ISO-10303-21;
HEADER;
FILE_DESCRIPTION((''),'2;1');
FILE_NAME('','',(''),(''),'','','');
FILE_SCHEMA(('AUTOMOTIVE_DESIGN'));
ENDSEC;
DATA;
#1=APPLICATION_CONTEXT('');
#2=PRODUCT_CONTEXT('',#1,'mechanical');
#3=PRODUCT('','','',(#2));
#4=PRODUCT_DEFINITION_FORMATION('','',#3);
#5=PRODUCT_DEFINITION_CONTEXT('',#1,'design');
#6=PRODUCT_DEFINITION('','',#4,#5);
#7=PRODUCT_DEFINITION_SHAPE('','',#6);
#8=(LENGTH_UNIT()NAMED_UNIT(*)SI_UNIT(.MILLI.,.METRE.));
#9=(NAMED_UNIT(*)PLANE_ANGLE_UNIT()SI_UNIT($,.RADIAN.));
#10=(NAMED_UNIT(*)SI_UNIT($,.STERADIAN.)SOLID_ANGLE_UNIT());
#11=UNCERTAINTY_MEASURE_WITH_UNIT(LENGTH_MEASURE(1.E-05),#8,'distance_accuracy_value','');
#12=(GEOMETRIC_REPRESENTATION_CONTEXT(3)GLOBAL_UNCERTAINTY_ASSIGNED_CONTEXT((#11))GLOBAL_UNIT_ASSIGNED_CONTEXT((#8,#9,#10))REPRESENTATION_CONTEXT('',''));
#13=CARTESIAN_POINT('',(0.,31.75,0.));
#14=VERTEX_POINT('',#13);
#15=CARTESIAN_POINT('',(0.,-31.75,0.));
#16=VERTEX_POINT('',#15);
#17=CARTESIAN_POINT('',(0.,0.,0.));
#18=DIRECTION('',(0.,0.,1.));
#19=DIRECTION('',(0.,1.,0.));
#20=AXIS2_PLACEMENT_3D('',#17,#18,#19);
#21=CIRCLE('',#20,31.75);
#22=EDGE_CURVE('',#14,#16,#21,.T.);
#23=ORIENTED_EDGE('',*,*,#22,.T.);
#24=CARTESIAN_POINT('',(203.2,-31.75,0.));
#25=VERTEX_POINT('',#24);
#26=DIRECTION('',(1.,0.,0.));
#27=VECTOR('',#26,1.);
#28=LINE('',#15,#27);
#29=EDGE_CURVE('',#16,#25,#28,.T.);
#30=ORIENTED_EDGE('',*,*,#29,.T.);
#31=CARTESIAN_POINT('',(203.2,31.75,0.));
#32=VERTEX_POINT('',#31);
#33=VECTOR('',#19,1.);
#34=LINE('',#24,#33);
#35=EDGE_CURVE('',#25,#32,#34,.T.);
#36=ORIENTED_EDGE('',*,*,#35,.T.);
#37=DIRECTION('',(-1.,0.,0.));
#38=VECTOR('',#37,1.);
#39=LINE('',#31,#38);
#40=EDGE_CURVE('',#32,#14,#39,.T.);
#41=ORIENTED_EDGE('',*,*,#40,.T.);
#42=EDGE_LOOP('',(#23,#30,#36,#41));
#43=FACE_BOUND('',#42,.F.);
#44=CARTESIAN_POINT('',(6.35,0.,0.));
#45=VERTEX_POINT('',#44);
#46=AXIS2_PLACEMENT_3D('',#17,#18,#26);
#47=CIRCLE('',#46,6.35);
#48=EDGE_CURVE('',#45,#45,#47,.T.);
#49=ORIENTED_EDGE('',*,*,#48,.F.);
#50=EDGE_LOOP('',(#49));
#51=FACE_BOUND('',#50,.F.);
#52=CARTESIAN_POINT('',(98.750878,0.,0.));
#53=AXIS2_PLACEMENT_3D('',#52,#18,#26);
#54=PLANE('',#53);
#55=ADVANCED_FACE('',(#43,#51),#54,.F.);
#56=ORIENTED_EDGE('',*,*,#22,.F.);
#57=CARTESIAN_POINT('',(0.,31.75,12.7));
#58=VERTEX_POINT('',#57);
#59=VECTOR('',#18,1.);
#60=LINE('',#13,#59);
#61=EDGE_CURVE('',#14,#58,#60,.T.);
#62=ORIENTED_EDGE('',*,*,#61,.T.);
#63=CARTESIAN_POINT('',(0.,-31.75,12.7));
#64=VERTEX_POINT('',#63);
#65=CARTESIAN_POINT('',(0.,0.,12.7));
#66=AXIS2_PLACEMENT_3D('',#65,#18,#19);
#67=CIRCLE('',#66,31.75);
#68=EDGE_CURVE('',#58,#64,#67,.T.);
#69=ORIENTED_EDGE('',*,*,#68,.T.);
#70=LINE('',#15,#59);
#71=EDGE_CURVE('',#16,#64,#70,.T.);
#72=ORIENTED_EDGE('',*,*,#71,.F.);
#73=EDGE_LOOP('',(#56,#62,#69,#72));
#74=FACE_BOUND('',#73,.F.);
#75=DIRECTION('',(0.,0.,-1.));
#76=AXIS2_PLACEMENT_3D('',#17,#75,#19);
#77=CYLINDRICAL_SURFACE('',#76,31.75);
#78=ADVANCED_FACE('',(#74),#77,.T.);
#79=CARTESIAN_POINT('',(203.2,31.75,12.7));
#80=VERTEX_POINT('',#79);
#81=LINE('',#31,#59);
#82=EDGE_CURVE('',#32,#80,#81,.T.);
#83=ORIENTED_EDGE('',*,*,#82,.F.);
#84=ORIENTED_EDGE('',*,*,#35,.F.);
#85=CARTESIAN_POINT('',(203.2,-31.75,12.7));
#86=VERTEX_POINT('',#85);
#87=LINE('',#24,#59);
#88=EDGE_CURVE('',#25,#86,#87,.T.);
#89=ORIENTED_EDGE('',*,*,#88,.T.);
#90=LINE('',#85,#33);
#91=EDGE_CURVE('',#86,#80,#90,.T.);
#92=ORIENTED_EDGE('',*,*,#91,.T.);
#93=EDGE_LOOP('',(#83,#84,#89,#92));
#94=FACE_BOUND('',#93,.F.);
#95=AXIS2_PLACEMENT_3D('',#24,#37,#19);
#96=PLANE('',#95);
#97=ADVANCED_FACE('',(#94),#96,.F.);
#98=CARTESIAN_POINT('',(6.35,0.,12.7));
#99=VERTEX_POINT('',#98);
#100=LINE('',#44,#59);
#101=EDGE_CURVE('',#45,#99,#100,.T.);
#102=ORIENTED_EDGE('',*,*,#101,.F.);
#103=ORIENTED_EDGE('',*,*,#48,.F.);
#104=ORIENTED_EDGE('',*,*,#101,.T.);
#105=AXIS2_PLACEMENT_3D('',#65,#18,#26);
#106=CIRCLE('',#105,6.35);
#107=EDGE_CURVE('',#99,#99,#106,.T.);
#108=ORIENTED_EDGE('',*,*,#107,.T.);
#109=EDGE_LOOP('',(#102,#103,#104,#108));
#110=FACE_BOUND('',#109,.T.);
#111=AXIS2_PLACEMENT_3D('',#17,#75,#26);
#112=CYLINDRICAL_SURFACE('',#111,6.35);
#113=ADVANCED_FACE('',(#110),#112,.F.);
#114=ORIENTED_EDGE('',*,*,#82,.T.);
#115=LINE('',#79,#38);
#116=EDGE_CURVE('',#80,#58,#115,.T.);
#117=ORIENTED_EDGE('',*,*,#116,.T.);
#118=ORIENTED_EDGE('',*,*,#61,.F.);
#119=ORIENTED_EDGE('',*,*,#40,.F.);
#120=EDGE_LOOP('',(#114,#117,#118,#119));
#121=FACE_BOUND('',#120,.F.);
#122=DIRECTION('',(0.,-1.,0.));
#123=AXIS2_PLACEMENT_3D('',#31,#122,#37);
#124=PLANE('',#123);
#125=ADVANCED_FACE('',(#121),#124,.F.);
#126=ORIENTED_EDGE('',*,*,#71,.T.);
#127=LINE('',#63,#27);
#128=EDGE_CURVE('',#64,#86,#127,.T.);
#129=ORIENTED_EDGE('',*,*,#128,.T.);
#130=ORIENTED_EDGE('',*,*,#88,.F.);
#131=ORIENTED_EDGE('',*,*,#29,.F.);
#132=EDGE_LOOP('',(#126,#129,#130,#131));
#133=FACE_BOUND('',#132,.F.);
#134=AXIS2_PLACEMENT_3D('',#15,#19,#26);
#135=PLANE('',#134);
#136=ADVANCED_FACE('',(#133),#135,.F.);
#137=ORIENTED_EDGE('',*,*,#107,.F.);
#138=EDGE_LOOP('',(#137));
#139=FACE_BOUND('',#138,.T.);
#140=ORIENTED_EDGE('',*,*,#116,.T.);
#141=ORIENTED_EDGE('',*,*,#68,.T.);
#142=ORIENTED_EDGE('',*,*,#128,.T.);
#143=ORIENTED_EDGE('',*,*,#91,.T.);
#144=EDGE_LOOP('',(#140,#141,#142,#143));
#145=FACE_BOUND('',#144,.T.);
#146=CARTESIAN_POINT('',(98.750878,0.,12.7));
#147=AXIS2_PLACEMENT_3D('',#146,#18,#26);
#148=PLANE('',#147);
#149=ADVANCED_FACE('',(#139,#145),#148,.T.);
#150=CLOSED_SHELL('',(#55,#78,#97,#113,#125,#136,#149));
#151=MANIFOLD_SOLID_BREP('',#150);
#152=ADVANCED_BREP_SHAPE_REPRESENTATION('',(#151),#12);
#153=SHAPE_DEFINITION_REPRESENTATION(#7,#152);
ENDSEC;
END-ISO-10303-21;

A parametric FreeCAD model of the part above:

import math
import FreeCAD as App
import Part
import Sketcher

V = App.Vector
Q = App.Units.Quantity

doc = App.newDocument("Part")
params = doc.addObject("Spreadsheet::Sheet", "Params")
for row, (alias, value) in enumerate([
    ("sketch1_diameter", "0.5 in"),
    ("sketch1_width", "8 in"),
    ("sketch1_radius", "1.25 in"),
    ("pad1_length", "0.5 in"),
], start=1):
    params.set(f"A{row}", alias)
    params.set(f"B{row}", "=" + value)
    params.setAlias(f"B{row}", alias)

body = doc.addObject("PartDesign::Body", "Body")

# Sketch on XY plane
sketch1 = body.newObject("Sketcher::SketchObject", "Sketch")
sketch1.AttachmentSupport = (doc.getObject("XY_Plane"), [""])
sketch1.MapMode = "FlatFace"
sketch1.addGeometry(Part.LineSegment(V(0, -32, 0), V(203, -32, 0)), False)
sketch1.addGeometry(Part.LineSegment(V(203, -32, 0), V(203, 32, 0)), False)
sketch1.addGeometry(Part.LineSegment(V(203, 32, 0), V(0, 32, 0)), False)
sketch1.addGeometry(Part.ArcOfCircle(Part.Circle(V(0, 0, 0), V(0, 0, 1), 32), math.radians(90), math.radians(270)), False)
sketch1.addGeometry(Part.Circle(V(0, 0, 0), V(0, 0, 1), 6), False)
sketch1.addConstraint(Sketcher.Constraint("Coincident", 0, 2, 1, 1))
sketch1.addConstraint(Sketcher.Constraint("Coincident", 1, 2, 2, 1))
sketch1.addConstraint(Sketcher.Constraint("Tangent", 2, 2, 3, 1))
sketch1.addConstraint(Sketcher.Constraint("Tangent", 3, 2, 0, 1))
sketch1.addConstraint(Sketcher.Constraint("Horizontal", 0))
sketch1.addConstraint(Sketcher.Constraint("Vertical", 1))
sketch1.addConstraint(Sketcher.Constraint("Horizontal", 2))
sketch1.addConstraint(Sketcher.Constraint("Coincident", 3, 3, -1, 1))
sketch1.addConstraint(Sketcher.Constraint("Coincident", 4, 3, -1, 1))
sketch1.addConstraint(Sketcher.Constraint("Diameter", 4, Q("0.5 in")))
sketch1.addConstraint(Sketcher.Constraint("DistanceX", 0, 1, 0, 2, Q("8 in")))
sketch1.addConstraint(Sketcher.Constraint("Radius", 3, Q("1.25 in")))
sketch1.setExpression("Constraints[9]", "Params.sketch1_diameter")
sketch1.setExpression("Constraints[10]", "Params.sketch1_width")
sketch1.setExpression("Constraints[11]", "Params.sketch1_radius")
pad1 = body.newObject("PartDesign::Pad", "Pad")
pad1.Profile = sketch1
pad1.setExpression("Length", "Params.pad1_length")

doc.recompute()
